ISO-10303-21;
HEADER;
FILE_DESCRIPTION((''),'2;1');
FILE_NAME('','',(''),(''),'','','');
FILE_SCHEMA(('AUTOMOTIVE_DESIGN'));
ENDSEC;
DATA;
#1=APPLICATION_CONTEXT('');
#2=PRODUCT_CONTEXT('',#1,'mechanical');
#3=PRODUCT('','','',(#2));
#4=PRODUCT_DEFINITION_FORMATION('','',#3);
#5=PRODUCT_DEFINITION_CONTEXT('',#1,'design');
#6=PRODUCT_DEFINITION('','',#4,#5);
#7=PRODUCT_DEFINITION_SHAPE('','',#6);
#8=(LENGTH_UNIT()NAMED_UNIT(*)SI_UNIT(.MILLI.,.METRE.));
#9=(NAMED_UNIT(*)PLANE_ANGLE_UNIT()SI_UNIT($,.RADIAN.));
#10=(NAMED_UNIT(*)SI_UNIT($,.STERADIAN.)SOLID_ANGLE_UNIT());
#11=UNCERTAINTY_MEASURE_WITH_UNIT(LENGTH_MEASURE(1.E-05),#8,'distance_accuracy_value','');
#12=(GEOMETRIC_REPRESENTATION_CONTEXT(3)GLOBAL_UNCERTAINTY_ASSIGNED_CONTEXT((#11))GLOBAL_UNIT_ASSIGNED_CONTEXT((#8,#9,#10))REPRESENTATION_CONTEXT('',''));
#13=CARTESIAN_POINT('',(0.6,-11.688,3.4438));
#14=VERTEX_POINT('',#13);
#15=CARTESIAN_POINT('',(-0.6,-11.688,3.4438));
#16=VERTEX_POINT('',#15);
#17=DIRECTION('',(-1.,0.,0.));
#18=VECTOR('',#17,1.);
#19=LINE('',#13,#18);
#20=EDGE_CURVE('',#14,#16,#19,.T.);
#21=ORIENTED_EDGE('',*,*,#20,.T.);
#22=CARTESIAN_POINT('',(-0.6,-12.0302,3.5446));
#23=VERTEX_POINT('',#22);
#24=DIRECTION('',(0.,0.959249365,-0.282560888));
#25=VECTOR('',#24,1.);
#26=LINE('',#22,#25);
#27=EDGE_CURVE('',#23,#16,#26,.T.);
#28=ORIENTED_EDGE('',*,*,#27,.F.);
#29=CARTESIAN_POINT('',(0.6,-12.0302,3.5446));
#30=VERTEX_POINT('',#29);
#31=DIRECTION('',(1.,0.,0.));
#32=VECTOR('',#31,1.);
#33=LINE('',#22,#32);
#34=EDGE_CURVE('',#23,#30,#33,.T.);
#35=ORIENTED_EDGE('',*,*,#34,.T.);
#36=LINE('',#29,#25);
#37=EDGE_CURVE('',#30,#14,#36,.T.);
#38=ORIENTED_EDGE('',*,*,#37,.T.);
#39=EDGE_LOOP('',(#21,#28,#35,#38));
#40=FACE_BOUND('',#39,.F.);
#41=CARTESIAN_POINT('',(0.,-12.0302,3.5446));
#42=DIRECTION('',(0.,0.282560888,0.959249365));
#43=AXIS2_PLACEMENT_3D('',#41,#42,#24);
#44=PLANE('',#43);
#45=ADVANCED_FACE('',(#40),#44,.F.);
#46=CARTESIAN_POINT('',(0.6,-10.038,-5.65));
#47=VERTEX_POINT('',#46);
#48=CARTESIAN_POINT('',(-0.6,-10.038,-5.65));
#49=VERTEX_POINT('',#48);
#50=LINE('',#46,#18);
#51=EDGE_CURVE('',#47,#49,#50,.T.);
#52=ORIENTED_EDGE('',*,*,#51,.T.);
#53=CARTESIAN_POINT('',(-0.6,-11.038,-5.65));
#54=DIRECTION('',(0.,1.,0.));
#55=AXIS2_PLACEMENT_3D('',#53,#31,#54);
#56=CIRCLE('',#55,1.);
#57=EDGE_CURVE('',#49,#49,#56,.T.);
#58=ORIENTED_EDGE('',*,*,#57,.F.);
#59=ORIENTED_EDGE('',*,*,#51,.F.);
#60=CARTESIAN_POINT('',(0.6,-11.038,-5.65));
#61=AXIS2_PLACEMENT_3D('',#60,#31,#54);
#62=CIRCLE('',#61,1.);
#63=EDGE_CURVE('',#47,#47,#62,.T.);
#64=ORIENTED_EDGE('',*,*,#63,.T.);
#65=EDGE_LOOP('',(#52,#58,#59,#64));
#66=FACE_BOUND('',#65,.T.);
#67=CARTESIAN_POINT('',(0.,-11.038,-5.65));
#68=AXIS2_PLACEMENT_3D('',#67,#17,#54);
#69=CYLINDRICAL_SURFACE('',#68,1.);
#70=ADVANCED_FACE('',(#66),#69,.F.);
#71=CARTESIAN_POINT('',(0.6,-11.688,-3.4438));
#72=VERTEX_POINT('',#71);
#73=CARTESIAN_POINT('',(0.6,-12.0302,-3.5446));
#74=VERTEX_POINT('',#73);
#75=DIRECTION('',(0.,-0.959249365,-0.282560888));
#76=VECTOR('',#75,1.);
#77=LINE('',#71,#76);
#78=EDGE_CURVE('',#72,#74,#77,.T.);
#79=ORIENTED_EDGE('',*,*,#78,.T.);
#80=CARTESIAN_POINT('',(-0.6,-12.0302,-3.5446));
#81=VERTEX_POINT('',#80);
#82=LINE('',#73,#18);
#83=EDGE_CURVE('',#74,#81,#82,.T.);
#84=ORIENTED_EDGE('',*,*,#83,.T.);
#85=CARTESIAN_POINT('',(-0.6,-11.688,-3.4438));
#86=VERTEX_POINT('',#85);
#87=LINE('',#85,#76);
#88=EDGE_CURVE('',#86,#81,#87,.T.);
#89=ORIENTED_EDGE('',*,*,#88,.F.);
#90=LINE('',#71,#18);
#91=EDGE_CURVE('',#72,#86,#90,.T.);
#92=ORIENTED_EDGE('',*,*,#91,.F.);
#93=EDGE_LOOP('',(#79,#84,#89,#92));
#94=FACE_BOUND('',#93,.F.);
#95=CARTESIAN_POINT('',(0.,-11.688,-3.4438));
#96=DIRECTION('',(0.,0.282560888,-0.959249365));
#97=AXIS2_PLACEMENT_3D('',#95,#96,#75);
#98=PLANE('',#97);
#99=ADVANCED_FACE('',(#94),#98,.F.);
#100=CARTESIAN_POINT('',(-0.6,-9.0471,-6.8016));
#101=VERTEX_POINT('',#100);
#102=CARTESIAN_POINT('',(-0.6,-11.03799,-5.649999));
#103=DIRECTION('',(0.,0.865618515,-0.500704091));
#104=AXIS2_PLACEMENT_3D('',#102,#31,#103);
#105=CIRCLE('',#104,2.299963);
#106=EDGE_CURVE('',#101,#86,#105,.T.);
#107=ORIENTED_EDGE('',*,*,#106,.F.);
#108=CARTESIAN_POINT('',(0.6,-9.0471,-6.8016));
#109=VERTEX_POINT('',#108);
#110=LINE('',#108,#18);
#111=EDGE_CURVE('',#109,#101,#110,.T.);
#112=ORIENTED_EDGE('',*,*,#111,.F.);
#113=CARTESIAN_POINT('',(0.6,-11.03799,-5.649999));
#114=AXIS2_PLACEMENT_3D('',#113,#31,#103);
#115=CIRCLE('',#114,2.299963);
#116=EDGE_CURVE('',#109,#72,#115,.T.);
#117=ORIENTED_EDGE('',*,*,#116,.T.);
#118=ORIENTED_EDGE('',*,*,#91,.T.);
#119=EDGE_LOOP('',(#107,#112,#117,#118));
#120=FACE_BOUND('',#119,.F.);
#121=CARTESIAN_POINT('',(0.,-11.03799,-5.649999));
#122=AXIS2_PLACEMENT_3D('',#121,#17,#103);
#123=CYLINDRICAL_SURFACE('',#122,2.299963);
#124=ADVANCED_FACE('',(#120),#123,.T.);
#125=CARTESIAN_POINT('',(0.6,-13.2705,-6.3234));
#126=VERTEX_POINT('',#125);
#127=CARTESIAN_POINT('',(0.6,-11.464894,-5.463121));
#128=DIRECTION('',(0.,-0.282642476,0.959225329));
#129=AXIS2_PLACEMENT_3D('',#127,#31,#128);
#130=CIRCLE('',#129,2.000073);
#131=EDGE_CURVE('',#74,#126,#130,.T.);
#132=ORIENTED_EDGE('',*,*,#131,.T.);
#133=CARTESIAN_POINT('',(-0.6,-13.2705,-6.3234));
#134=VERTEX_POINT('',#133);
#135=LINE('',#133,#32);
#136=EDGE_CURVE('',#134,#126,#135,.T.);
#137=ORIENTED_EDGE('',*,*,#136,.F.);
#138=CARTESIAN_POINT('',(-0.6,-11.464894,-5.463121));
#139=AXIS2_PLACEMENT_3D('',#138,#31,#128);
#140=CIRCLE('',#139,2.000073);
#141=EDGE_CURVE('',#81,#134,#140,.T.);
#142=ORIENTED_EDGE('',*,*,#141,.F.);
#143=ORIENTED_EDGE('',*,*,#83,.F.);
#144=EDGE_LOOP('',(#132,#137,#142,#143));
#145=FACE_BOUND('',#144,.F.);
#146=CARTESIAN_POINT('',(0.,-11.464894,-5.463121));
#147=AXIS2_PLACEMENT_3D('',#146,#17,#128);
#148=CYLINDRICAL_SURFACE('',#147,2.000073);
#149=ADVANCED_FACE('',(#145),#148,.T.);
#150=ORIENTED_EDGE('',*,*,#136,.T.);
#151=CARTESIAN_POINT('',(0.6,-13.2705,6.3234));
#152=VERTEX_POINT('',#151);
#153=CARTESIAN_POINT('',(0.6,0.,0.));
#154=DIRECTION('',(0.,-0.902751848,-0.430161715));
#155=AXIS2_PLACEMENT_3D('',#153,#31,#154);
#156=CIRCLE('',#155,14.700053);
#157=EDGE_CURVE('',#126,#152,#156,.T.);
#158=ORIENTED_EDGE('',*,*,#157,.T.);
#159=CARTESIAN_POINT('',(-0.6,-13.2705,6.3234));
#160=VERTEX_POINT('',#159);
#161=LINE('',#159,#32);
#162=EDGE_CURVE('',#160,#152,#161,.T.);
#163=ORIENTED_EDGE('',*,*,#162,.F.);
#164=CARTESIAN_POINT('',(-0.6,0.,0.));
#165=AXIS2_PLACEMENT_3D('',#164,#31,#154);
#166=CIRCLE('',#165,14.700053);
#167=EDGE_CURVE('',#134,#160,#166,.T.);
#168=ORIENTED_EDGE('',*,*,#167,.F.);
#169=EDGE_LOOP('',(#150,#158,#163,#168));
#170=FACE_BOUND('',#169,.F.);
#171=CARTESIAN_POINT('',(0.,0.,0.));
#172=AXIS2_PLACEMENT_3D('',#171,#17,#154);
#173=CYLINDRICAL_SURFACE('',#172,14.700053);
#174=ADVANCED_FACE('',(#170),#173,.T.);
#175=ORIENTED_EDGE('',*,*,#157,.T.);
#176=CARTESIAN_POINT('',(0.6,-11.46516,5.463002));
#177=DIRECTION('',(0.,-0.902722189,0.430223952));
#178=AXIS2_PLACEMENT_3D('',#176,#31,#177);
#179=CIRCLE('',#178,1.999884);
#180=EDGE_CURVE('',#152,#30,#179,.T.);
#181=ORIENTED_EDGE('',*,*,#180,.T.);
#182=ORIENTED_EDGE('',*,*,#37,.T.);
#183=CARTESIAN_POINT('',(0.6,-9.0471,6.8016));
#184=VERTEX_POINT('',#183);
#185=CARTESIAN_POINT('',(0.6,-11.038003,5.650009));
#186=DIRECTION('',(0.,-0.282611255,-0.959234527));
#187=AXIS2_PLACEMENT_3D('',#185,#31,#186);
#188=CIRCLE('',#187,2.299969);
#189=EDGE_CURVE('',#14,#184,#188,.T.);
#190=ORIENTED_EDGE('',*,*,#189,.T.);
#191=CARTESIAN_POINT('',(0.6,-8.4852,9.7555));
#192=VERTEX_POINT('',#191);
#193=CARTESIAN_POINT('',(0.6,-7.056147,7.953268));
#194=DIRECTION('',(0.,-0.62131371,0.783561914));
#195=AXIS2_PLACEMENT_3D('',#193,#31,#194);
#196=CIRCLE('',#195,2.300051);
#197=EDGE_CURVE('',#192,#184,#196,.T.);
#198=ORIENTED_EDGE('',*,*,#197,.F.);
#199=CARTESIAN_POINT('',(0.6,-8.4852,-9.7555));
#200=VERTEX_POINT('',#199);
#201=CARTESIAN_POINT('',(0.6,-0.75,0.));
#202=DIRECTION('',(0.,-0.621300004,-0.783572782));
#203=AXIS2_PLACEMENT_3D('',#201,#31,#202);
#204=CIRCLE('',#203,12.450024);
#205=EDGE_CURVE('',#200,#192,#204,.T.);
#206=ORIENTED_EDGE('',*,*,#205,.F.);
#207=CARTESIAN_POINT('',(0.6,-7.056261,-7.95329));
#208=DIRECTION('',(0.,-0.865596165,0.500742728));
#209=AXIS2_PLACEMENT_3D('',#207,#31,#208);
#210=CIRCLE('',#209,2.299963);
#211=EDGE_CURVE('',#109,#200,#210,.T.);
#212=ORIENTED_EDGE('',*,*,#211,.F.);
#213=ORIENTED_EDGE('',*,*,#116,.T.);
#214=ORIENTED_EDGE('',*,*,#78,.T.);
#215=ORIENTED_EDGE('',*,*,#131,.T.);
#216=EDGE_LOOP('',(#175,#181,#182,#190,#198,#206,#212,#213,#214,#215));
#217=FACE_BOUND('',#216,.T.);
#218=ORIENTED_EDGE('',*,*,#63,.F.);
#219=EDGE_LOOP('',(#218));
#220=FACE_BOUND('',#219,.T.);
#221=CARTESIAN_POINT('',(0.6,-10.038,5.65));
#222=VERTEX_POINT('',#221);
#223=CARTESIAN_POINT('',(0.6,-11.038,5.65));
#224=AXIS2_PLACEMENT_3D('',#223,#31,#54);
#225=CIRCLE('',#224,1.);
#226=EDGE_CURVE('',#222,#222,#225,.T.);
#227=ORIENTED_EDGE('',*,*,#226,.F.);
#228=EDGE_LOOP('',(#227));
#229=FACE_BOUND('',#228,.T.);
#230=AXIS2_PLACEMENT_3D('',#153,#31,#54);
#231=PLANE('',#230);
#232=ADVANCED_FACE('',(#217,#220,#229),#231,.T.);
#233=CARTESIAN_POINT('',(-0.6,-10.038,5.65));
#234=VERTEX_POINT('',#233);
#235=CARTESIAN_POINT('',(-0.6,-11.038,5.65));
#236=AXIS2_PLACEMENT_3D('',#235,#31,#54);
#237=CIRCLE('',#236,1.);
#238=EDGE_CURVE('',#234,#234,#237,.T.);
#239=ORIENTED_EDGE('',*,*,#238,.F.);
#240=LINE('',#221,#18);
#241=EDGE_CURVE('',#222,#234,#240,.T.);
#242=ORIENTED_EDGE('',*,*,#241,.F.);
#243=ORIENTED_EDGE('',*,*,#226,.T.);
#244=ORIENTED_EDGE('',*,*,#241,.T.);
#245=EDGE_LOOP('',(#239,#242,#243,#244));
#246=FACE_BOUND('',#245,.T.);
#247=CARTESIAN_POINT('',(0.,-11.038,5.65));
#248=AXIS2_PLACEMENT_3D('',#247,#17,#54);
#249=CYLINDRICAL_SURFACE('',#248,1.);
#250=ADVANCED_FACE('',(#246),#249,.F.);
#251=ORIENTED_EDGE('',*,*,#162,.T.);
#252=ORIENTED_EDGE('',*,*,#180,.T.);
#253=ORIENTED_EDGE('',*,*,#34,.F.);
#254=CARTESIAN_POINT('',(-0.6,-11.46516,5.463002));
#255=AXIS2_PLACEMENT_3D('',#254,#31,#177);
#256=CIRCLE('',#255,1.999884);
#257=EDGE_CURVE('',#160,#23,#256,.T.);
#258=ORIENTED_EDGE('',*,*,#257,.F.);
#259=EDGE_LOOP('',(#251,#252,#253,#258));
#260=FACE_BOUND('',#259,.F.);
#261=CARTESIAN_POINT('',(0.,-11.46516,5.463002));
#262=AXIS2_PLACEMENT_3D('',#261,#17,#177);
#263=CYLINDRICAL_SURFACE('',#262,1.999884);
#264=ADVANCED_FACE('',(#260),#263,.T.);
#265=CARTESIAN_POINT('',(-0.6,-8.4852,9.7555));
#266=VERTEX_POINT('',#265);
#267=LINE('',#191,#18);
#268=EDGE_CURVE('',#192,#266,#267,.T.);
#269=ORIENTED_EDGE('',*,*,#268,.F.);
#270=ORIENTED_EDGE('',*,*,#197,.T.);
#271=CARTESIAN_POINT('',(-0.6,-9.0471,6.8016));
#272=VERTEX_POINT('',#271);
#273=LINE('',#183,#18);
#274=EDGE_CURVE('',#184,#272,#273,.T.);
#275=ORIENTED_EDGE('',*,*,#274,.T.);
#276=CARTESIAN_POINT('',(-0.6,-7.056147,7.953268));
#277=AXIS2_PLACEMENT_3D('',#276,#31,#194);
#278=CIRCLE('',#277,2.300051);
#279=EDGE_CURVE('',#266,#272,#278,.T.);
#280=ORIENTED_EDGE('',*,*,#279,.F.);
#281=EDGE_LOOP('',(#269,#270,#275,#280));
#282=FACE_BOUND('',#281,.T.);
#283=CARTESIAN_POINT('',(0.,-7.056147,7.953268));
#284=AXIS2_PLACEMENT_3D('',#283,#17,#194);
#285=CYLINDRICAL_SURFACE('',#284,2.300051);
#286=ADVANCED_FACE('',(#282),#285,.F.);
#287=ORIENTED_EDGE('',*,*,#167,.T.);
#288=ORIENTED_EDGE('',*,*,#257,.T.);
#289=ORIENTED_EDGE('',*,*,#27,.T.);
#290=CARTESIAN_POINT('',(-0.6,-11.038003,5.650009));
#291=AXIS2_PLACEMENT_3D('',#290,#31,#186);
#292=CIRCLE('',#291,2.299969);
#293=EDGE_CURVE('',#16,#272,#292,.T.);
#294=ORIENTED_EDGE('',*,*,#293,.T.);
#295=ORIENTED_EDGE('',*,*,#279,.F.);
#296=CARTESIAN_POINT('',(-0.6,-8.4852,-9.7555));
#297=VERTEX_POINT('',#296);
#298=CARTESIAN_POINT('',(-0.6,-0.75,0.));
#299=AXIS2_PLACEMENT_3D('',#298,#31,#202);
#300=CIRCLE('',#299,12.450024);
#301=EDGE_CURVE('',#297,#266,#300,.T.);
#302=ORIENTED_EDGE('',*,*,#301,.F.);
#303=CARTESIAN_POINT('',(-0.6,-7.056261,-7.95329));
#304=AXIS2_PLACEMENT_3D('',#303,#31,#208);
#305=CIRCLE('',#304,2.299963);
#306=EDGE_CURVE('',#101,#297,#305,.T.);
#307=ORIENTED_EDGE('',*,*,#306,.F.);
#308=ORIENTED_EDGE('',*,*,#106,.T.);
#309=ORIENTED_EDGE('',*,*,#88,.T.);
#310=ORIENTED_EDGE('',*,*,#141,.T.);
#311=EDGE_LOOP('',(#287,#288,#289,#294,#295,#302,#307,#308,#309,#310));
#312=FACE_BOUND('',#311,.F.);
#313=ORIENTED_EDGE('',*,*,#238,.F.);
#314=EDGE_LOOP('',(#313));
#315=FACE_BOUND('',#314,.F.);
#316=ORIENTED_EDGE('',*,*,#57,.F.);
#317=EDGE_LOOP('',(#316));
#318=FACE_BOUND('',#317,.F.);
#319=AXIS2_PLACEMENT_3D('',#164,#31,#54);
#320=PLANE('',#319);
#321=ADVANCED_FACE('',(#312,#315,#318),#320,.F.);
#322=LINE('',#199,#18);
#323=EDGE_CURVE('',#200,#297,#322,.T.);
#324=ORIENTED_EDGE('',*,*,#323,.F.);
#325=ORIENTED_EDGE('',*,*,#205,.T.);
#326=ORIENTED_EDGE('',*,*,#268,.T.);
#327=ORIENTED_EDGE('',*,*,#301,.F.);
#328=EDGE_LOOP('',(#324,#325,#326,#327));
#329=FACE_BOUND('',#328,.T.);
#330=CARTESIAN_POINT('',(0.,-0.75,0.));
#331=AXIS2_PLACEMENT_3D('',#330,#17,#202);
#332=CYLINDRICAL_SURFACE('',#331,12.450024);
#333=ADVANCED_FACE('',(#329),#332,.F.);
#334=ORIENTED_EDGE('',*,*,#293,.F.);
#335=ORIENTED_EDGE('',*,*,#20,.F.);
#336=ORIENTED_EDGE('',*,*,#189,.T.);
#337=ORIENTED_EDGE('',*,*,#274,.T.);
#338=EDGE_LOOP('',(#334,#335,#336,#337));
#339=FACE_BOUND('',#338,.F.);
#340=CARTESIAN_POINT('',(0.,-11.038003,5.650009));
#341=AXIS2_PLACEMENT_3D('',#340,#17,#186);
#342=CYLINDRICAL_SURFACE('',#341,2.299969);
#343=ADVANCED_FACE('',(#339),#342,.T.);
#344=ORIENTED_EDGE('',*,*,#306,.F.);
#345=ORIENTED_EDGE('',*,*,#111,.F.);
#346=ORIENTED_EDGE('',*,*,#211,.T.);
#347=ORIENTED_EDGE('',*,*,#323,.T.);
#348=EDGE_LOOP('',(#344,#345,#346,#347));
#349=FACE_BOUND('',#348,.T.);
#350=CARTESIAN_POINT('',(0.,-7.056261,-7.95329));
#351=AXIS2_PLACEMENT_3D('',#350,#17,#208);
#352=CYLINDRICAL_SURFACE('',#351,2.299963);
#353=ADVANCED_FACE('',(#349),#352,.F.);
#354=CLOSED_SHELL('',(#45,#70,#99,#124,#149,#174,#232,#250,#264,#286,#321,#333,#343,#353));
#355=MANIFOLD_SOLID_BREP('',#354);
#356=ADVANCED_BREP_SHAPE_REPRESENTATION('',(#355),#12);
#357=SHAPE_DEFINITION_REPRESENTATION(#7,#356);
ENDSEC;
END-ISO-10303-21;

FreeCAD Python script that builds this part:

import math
import FreeCAD as App
import Part
import Sketcher
from FreeCAD import Vector
Q = App.Units.Quantity

doc = App.newDocument("Part")
body = doc.addObject("PartDesign::Body", "Body")

# Sketch on YZ plane
sketch1 = doc.addObject("Sketcher::SketchObject", "Sketch")
body.addObject(sketch1)
sketch1.AttachmentSupport = (doc.YZ_Plane, [""])
sketch1.MapMode = "FlatFace"
sketch1.addGeometry(Part.ArcOfCircle(Part.Circle(Vector(-11.46, -5.46, 0), Vector(0, 0, 1), 2), math.radians(106), math.radians(205)), False)
sketch1.addGeometry(Part.ArcOfCircle(Part.Circle(Vector(0, 0, 0), Vector(0, 0, 1), 14.7), math.radians(-155), math.radians(155)), False)
sketch1.addGeometry(Part.ArcOfCircle(Part.Circle(Vector(-11.46, 5.46, 0), Vector(0, 0, 1), 2), math.radians(155), math.radians(254)), False)
sketch1.addGeometry(Part.LineSegment(Vector(-12.03, 3.54, 0), Vector(-11.69, 3.44, 0)), False)
sketch1.addGeometry(Part.ArcOfCircle(Part.Circle(Vector(-11.04, 5.65, 0), Vector(0, 0, 1), 2.3), math.radians(-106), math.radians(30)), False)
sketch1.addGeometry(Part.ArcOfCircle(Part.Circle(Vector(-7.06, 7.95, 0), Vector(0, 0, 1), 2.3), math.radians(128), math.radians(210)), False)
sketch1.addGeometry(Part.ArcOfCircle(Part.Circle(Vector(-0.75, 0, 0), Vector(0, 0, 1), 12.45), math.radians(-128), math.radians(128)), False)
sketch1.addGeometry(Part.ArcOfCircle(Part.Circle(Vector(-7.06, -7.95, 0), Vector(0, 0, 1), 2.3), math.radians(150), math.radians(232)), False)
sketch1.addGeometry(Part.ArcOfCircle(Part.Circle(Vector(-11.04, -5.65, 0), Vector(0, 0, 1), 2.3), math.radians(-30), math.radians(106)), False)
sketch1.addGeometry(Part.LineSegment(Vector(-11.69, -3.44, 0), Vector(-12.03, -3.54, 0)), False)
sketch1.addGeometry(Part.Circle(Vector(-11.04, -5.65, 0), Vector(0, 0, 1), 1), False)
sketch1.addGeometry(Part.Circle(Vector(-11.04, 5.65, 0), Vector(0, 0, 1), 1), False)
sketch1.addConstraint(Sketcher.Constraint("Tangent", 0, 2, 1, 1))
sketch1.addConstraint(Sketcher.Constraint("Tangent", 1, 2, 2, 1))
sketch1.addConstraint(Sketcher.Constraint("Tangent", 2, 2, 3, 1))
sketch1.addConstraint(Sketcher.Constraint("Tangent", 3, 2, 4, 1))
sketch1.addConstraint(Sketcher.Constraint("Tangent", 4, 2, 5, 2))
sketch1.addConstraint(Sketcher.Constraint("Tangent", 5, 1, 6, 2))
sketch1.addConstraint(Sketcher.Constraint("Tangent", 6, 1, 7, 2))
sketch1.addConstraint(Sketcher.Constraint("Tangent", 7, 1, 8, 1))
sketch1.addConstraint(Sketcher.Constraint("Tangent", 8, 2, 9, 1))
sketch1.addConstraint(Sketcher.Constraint("Tangent", 9, 2, 0, 1))
sketch1.addConstraint(Sketcher.Constraint("Coincident", 1, 3, -1, 1))
sketch1.addConstraint(Sketcher.Constraint("Coincident", 10, 3, 8, 3))
sketch1.addConstraint(Sketcher.Constraint("Coincident", 11, 3, 4, 3))
sketch1.addConstraint(Sketcher.Constraint("Equal", 0, 2))
sketch1.addConstraint(Sketcher.Constraint("Equal", 4, 5))
sketch1.addConstraint(Sketcher.Constraint("Equal", 5, 7))
sketch1.addConstraint(Sketcher.Constraint("Equal", 7, 8))
sketch1.addConstraint(Sketcher.Constraint("Equal", 10, 11))
sketch1.addConstraint(Sketcher.Constraint("Symmetric", 5, 3, 7, 3, -1))
sketch1.addConstraint(Sketcher.Constraint("Symmetric", 3, 2, 8, 2, -1))
sketch1.addConstraint(Sketcher.Constraint("Diameter", 10, Q("2 mm")))
sketch1.addConstraint(Sketcher.Constraint("Radius", 0, Q("2 mm")))
sketch1.addConstraint(Sketcher.Constraint("Radius", 1, Q("14.7 mm")))
sketch1.addConstraint(Sketcher.Constraint("Radius", 4, Q("2.3 mm")))
sketch1.addConstraint(Sketcher.Constraint("Radius", 6, Q("12.45 mm")))
sketch1.addConstraint(Sketcher.Constraint("DistanceY", 8, 3, 4, 3, Q("11.3 mm")))
sketch1.addConstraint(Sketcher.Constraint("DistanceX", 6, 3, -1, 1, Q("0.75 mm")))
sketch1.addConstraint(Sketcher.Constraint("DistanceY", 7, 3, 0, 2, Q("1.63 mm")))
sketch1.addConstraint(Sketcher.Constraint("DistanceX", 3, 2, 4, 3, Q("0.65 mm")))
pad1 = doc.addObject("PartDesign::Pad", "Pad")
body.addObject(pad1)
pad1.Profile = sketch1
pad1.Length = 1.2
pad1.Midplane = True

doc.recompute()
